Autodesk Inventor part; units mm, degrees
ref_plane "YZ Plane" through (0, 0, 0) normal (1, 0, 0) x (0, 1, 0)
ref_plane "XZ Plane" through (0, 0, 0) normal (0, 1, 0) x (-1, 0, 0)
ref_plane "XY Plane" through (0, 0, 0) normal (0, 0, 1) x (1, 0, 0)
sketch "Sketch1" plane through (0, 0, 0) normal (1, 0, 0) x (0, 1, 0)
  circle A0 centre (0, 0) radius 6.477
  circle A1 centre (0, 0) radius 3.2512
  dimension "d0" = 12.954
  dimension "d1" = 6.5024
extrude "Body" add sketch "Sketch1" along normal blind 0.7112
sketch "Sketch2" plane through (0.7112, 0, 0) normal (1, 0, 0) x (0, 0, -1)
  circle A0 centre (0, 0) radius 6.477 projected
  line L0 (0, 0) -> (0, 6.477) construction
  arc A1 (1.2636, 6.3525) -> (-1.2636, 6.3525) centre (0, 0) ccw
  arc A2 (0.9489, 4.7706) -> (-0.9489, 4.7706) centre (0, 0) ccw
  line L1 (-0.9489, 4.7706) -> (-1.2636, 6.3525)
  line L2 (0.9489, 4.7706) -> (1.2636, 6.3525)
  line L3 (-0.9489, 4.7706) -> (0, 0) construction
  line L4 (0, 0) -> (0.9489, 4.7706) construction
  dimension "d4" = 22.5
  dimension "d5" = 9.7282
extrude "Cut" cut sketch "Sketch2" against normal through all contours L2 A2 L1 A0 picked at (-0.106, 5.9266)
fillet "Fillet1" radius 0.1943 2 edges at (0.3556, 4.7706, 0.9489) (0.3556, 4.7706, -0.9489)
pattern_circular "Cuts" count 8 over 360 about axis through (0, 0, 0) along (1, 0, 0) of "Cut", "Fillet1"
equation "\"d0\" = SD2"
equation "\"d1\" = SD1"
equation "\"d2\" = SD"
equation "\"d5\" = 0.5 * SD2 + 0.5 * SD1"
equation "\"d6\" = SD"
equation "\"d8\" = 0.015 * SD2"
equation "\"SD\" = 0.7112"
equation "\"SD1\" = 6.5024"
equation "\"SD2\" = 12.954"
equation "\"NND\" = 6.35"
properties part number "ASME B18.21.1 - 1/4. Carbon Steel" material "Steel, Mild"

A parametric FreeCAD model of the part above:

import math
import FreeCAD as App
import Part
import Sketcher
Q = App.Units.Quantity


def edges_at(feature, points):
    """Names of the edges that pass closest to the given points."""
    edges = feature.Shape.Edges
    near = lambda p: min(range(len(edges)), key=lambda i: edges[i].distToShape(Part.Vertex(*p))[0])
    return sorted({f"Edge{near(p) + 1}" for p in points})

doc = App.newDocument("Part")
body = doc.addObject("PartDesign::Body", "Body")

sketch1 = body.newObject("Sketcher::SketchObject", "Sketch")
sketch1.AttachmentSupport = (doc.getObject("YZ_Plane"), [""])
sketch1.MapMode = "FlatFace"
sketch1.addGeometry([
    Part.Circle(App.Vector(0, 0, 0), App.Vector(0, 0, 1), 6.477),
    Part.Circle(App.Vector(0, 0, 0), App.Vector(0, 0, 1), 3.2512),
], False)
sketch1.addConstraint([
    Sketcher.Constraint("Coincident", 0, 3, -1, 1),
    Sketcher.Constraint("Coincident", 1, 3, -1, 1),
    Sketcher.Constraint("Diameter", 0, Q("0.51 in")),
    Sketcher.Constraint("Diameter", 1, Q("0.256 in")),
])
pad1 = body.newObject("PartDesign::Pad", "Pad")
pad1.Profile = sketch1
pad1.Length = Q("0.028 in")

sketch2 = body.newObject("Sketcher::SketchObject", "Sketch001")
sketch2.AttachmentSupport = (doc.getObject("YZ_Plane"), [""])
sketch2.MapMode = "FlatFace"
sketch2.AttachmentOffset = App.Placement(App.Vector(0, 0, 0.028 * 25.4), App.Rotation())
sketch2.addGeometry([
    Part.LineSegment(App.Vector(4.7706, -0.9489, 0), App.Vector(6.3525, -1.2636, 0)),
    Part.ArcOfCircle(Part.Circle(App.Vector(0, 0, 0), App.Vector(0, 0, 1), 6.477), math.radians(-11.25008), math.radians(11.25008)),
    Part.LineSegment(App.Vector(6.3525, 1.2636, 0), App.Vector(4.7706, 0.9489, 0)),
    Part.ArcOfCircle(Part.Circle(App.Vector(0, 0, 0), App.Vector(0, 0, 1), 4.864055), math.radians(-11.249638), math.radians(11.249638)),
], False)
sketch2.addConstraint([
    Sketcher.Constraint("Coincident", 0, 2, 1, 1),
    Sketcher.Constraint("Coincident", 1, 2, 2, 1),
    Sketcher.Constraint("Coincident", 2, 2, 3, 2),
    Sketcher.Constraint("Coincident", 3, 1, 0, 1),
    Sketcher.Constraint("Coincident", 1, 3, -1, 1),
    Sketcher.Constraint("Coincident", 3, 3, -1, 1),
    Sketcher.Constraint("Vertical", 0, 2, 1, 2),
    Sketcher.Constraint("Vertical", 2, 2, 3, 1),
    Sketcher.Constraint("Radius", 3, Q("0.1915 in")),
    Sketcher.Constraint("Radius", 1, Q("0.255 in")),
    Sketcher.Constraint("DistanceX", -1, 1, 0, 2, Q("0.2501 in")),
    Sketcher.Constraint("DistanceY", 2, 2, 1, 2, Q("0.0124 in")),
])
pocket1 = body.newObject("PartDesign::Pocket", "Pocket")
pocket1.Profile = sketch2
pocket1.Type = "ThroughAll"
doc.recompute()

fillet = body.newObject("PartDesign::Fillet", "Fillet")
fillet.Base = (pocket1, edges_at(pocket1, [(0.356, 4.771, 0.949), (0.356, 4.771, -0.949)]))
fillet.Radius = 0.1943
doc.recompute()

polarpattern = body.newObject("PartDesign::PolarPattern", "PolarPattern")
polarpattern.Originals = [pocket1, fillet]
polarpattern.Axis = (doc.getObject("X_Axis"), [""])
polarpattern.Angle = 360
polarpattern.Occurrences = 8
body.Tip = polarpattern

doc.recompute()
